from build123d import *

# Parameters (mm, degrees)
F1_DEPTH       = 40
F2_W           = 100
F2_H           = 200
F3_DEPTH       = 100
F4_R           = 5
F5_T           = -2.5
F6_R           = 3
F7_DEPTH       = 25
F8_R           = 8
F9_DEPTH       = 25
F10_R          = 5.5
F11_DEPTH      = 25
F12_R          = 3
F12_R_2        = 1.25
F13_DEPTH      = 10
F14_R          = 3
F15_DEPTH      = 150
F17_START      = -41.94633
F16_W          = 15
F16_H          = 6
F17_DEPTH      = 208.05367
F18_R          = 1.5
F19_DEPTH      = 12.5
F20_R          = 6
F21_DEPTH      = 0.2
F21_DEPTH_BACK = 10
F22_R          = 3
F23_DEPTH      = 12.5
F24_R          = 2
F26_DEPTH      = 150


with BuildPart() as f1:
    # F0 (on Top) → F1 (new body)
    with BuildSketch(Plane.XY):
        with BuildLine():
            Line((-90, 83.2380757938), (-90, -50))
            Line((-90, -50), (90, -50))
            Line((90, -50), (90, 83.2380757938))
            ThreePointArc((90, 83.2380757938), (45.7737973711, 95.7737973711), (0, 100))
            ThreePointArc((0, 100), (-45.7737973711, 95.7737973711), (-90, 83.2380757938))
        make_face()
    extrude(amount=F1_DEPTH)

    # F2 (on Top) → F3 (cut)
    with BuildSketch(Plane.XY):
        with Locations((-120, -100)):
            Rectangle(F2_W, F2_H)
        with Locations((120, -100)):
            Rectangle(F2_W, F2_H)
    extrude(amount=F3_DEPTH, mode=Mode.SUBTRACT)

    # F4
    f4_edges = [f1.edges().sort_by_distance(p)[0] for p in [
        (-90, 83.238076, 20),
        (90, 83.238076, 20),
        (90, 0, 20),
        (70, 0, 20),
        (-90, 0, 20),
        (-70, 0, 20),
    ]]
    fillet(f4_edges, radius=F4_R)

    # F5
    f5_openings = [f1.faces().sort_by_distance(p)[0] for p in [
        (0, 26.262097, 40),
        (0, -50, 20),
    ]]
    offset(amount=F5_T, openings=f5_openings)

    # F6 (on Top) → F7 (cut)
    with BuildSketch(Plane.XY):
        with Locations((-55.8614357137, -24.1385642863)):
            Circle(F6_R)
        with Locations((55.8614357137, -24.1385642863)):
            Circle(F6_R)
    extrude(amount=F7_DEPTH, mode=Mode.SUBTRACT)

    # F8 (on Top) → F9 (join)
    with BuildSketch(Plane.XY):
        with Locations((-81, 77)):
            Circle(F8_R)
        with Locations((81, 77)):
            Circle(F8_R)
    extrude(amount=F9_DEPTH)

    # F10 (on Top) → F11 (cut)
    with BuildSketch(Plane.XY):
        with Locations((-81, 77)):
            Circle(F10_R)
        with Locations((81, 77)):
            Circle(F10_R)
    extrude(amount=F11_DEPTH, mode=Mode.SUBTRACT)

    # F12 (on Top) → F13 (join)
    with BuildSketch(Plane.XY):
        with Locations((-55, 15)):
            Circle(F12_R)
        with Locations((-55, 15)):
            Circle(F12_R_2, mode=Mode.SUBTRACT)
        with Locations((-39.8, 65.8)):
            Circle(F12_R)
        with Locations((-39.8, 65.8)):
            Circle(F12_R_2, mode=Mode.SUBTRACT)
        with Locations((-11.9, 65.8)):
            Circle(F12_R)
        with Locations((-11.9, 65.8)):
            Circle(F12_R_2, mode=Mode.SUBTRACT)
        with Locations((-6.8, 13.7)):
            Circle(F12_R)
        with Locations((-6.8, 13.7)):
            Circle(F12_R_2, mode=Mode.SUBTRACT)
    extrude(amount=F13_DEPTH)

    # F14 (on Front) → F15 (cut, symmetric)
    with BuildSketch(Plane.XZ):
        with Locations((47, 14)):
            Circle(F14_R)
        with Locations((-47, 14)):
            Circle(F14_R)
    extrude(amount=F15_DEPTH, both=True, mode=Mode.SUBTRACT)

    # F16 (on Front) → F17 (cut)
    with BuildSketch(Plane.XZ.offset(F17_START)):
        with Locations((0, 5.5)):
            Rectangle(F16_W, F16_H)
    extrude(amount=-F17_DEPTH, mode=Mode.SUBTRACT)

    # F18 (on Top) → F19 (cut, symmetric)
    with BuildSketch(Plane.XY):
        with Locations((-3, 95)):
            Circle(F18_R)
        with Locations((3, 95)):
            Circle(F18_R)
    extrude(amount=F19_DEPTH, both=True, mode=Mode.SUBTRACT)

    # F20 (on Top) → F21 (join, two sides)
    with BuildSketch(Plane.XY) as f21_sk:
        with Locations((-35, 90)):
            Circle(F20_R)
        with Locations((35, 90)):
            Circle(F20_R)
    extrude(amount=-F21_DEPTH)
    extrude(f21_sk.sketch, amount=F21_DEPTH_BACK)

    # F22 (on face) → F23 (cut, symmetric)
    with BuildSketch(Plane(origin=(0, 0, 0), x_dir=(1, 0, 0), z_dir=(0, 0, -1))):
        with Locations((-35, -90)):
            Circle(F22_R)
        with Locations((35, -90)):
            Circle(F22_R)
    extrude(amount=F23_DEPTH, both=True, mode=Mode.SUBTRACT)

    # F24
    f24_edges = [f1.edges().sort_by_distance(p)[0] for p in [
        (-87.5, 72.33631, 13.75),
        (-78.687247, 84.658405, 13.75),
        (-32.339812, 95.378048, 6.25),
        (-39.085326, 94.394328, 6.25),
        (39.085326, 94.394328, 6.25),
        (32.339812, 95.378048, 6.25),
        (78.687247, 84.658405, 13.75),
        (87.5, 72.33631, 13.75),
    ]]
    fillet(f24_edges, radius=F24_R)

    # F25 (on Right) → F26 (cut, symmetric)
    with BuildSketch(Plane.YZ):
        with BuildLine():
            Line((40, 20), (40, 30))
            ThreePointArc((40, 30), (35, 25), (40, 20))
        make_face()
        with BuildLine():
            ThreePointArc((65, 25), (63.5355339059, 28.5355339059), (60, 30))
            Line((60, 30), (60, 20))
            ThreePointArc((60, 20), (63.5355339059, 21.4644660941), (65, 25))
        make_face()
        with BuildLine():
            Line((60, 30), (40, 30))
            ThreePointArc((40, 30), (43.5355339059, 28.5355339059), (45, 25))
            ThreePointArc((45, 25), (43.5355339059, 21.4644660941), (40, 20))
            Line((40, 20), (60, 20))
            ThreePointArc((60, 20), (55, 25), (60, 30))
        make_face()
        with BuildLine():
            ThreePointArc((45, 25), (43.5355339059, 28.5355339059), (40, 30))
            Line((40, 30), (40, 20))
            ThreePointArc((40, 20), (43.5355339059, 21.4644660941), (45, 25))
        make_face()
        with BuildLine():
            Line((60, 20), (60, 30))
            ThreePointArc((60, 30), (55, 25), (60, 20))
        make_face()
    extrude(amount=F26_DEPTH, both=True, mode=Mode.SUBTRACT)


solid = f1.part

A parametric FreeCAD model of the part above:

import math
import FreeCAD as App
import Part
import Sketcher
Q = App.Units.Quantity


def edges_at(feature, points):
    """Names of the edges that pass closest to the given points."""
    edges = feature.Shape.Edges
    near = lambda p: min(range(len(edges)), key=lambda i: edges[i].distToShape(Part.Vertex(*p))[0])
    return sorted({f"Edge{near(p) + 1}" for p in points})


def faces_at(feature, points):
    """Names of the faces that lie closest to the given points."""
    faces = feature.Shape.Faces
    near = lambda p: min(range(len(faces)), key=lambda i: faces[i].distToShape(Part.Vertex(*p))[0])
    return sorted({f"Face{near(p) + 1}" for p in points})

doc = App.newDocument("Part")
body = doc.addObject("PartDesign::Body", "Body")

# Sketch on XY plane
sketch1 = doc.addObject("Sketcher::SketchObject", "Sketch")
body.addObject(sketch1)
sketch1.AttachmentSupport = (doc.XY_Plane, [""])
sketch1.MapMode = "FlatFace"
sketch1.addGeometry(Part.LineSegment(App.Vector(-90, 83.238076, 0), App.Vector(-90, -50, 0)), False)
sketch1.addGeometry(Part.LineSegment(App.Vector(-90, -50, 0), App.Vector(90, -50, 0)), False)
sketch1.addGeometry(Part.LineSegment(App.Vector(90, -50, 0), App.Vector(90, 83.238076, 0)), False)
sketch1.addGeometry(Part.ArcOfCircle(Part.Circle(App.Vector(0, -150, 0), App.Vector(0, 0, 1), 250), math.radians(68.899804), math.radians(90)), False)
sketch1.addGeometry(Part.ArcOfCircle(Part.Circle(App.Vector(0, -150, 0), App.Vector(0, 0, 1), 250), math.radians(90), math.radians(111.100196)), False)
sketch1.addConstraint(Sketcher.Constraint("Coincident", 0, 2, 1, 1))
sketch1.addConstraint(Sketcher.Constraint("Coincident", 1, 2, 2, 1))
sketch1.addConstraint(Sketcher.Constraint("Coincident", 2, 2, 3, 1))
sketch1.addConstraint(Sketcher.Constraint("Tangent", 3, 2, 4, 1))
sketch1.addConstraint(Sketcher.Constraint("Coincident", 4, 2, 0, 1))
sketch1.addConstraint(Sketcher.Constraint("Vertical", 0))
sketch1.addConstraint(Sketcher.Constraint("Horizontal", 1))
sketch1.addConstraint(Sketcher.Constraint("Vertical", 2))
sketch1.addConstraint(Sketcher.Constraint("Equal", 3, 4))
sketch1.addConstraint(Sketcher.Constraint("Symmetric", 2, 2, 4, 2, -2))
sketch1.addConstraint(Sketcher.Constraint("PointOnObject", 3, 2, -2))
sketch1.addConstraint(Sketcher.Constraint("Radius", 3, Q("250 mm")))
sketch1.addConstraint(Sketcher.Constraint("DistanceX", 1, 1, 1, 2, Q("180 mm")))
sketch1.addConstraint(Sketcher.Constraint("DistanceY", 3, 3, -1, 1, Q("150 mm")))
sketch1.addConstraint(Sketcher.Constraint("DistanceY", 0, 2, -1, 1, Q("50 mm")))
pad1 = doc.addObject("PartDesign::Pad", "Pad")
body.addObject(pad1)
pad1.Profile = sketch1
pad1.Length = 40

# Sketch on XY plane
sketch2 = doc.addObject("Sketcher::SketchObject", "Sketch001")
body.addObject(sketch2)
sketch2.AttachmentSupport = (doc.XY_Plane, [""])
sketch2.MapMode = "FlatFace"
sketch2.addGeometry(Part.LineSegment(App.Vector(-170, 0, 0), App.Vector(-170, -200, 0)), False)
sketch2.addGeometry(Part.LineSegment(App.Vector(-170, -200, 0), App.Vector(-70, -200, 0)), False)
sketch2.addGeometry(Part.LineSegment(App.Vector(-70, -200, 0), App.Vector(-70, 0, 0)), False)
sketch2.addGeometry(Part.LineSegment(App.Vector(-70, 0, 0), App.Vector(-170, 0, 0)), False)
sketch2.addGeometry(Part.LineSegment(App.Vector(70, 0, 0), App.Vector(70, -200, 0)), False)
sketch2.addGeometry(Part.LineSegment(App.Vector(70, -200, 0), App.Vector(170, -200, 0)), False)
sketch2.addGeometry(Part.LineSegment(App.Vector(170, -200, 0), App.Vector(170, 0, 0)), False)
sketch2.addGeometry(Part.LineSegment(App.Vector(170, 0, 0), App.Vector(70, 0, 0)), False)
sketch2.addConstraint(Sketcher.Constraint("Coincident", 0, 2, 1, 1))
sketch2.addConstraint(Sketcher.Constraint("Coincident", 1, 2, 2, 1))
sketch2.addConstraint(Sketcher.Constraint("Coincident", 2, 2, 3, 1))
sketch2.addConstraint(Sketcher.Constraint("Coincident", 3, 2, 0, 1))
sketch2.addConstraint(Sketcher.Constraint("Coincident", 4, 2, 5, 1))
sketch2.addConstraint(Sketcher.Constraint("Coincident", 5, 2, 6, 1))
sketch2.addConstraint(Sketcher.Constraint("Coincident", 6, 2, 7, 1))
sketch2.addConstraint(Sketcher.Constraint("Coincident", 7, 2, 4, 1))
sketch2.addConstraint(Sketcher.Constraint("Vertical", 0))
sketch2.addConstraint(Sketcher.Constraint("Horizontal", 1))
sketch2.addConstraint(Sketcher.Constraint("Vertical", 2))
sketch2.addConstraint(Sketcher.Constraint("Horizontal", 3))
sketch2.addConstraint(Sketcher.Constraint("Vertical", 4))
sketch2.addConstraint(Sketcher.Constraint("Horizontal", 5))
sketch2.addConstraint(Sketcher.Constraint("Vertical", 6))
sketch2.addConstraint(Sketcher.Constraint("Horizontal", 7))
sketch2.addConstraint(Sketcher.Constraint("Symmetric", 3, 2, 6, 2, -1, 1))
sketch2.addConstraint(Sketcher.Constraint("Symmetric", 1, 2, 4, 2, -2))
sketch2.addConstraint(Sketcher.Constraint("PointOnObject", 2, 2, -1))
sketch2.addConstraint(Sketcher.Constraint("DistanceX", 1, 1, 1, 2, Q("100 mm")))
sketch2.addConstraint(Sketcher.Constraint("DistanceY", 0, 2, 0, 1, Q("200 mm")))
sketch2.addConstraint(Sketcher.Constraint("DistanceX", 0, 2, -1, 1, Q("170 mm")))
pocket1 = doc.addObject("PartDesign::Pocket", "Pocket")
body.addObject(pocket1)
pocket1.Profile = sketch2
pocket1.Length = 100
pocket1.Reversed = True
doc.recompute()

fillet = doc.addObject("PartDesign::Fillet", "Fillet")
body.addObject(fillet)
fillet.Base = (pocket1, edges_at(pocket1, [
    (-90, 83.238, 20),
    (90, 83.238, 20),
    (90, 0, 20),
    (70, 0, 20),
    (-90, 0, 20),
    (-70, 0, 20),
]))
fillet.Radius = 5
doc.recompute()

thickness = doc.addObject("PartDesign::Thickness", "Thickness")
body.addObject(thickness)
thickness.Base = (fillet, faces_at(fillet, [(0, 25, 40), (0, -50, 20)]))
thickness.Value = 2.5
thickness.Reversed = True
thickness.Join = "Arc"

# Sketch on XY plane
sketch3 = doc.addObject("Sketcher::SketchObject", "Sketch002")
body.addObject(sketch3)
sketch3.AttachmentSupport = (doc.XY_Plane, [""])
sketch3.MapMode = "FlatFace"
sketch3.addGeometry(Part.Circle(App.Vector(-55.861436, -24.138564, 0), App.Vector(0, 0, 1), 3), False)
sketch3.addGeometry(Part.Circle(App.Vector(55.861436, -24.138564, 0), App.Vector(0, 0, 1), 3), False)
sketch3.addConstraint(Sketcher.Constraint("Equal", 0, 1))
sketch3.addConstraint(Sketcher.Constraint("Symmetric", 0, 3, 1, 3, -2))
sketch3.addConstraint(Sketcher.Constraint("Diameter", 0, Q("6 mm")))
sketch3.addConstraint(Sketcher.Constraint("DistanceX", 0, 3, 1, 3, Q("111.722871 mm")))
sketch3.addConstraint(Sketcher.Constraint("DistanceY", 0, 3, -1, 1, Q("24.138564 mm")))
pocket2 = doc.addObject("PartDesign::Pocket", "Pocket001")
body.addObject(pocket2)
pocket2.Profile = sketch3
pocket2.Length = 25
pocket2.Reversed = True

# Sketch on XY plane
sketch4 = doc.addObject("Sketcher::SketchObject", "Sketch003")
body.addObject(sketch4)
sketch4.AttachmentSupport = (doc.XY_Plane, [""])
sketch4.MapMode = "FlatFace"
sketch4.addGeometry(Part.Circle(App.Vector(-81, 77, 0), App.Vector(0, 0, 1), 8), False)
sketch4.addGeometry(Part.Circle(App.Vector(81, 77, 0), App.Vector(0, 0, 1), 8), False)
sketch4.addConstraint(Sketcher.Constraint("Equal", 0, 1))
sketch4.addConstraint(Sketcher.Constraint("Symmetric", 0, 3, 1, 3, -2))
sketch4.addConstraint(Sketcher.Constraint("Diameter", 0, Q("16 mm")))
sketch4.addConstraint(Sketcher.Constraint("DistanceX", 0, 3, -1, 1, Q("81 mm")))
sketch4.addConstraint(Sketcher.Constraint("DistanceY", -1, 1, 0, 3, Q("77 mm")))
pad2 = doc.addObject("PartDesign::Pad", "Pad001")
body.addObject(pad2)
pad2.Profile = sketch4
pad2.Length = 25

# Sketch on XY plane
sketch5 = doc.addObject("Sketcher::SketchObject", "Sketch004")
body.addObject(sketch5)
sketch5.AttachmentSupport = (doc.XY_Plane, [""])
sketch5.MapMode = "FlatFace"
sketch5.addGeometry(Part.Circle(App.Vector(-81, 77, 0), App.Vector(0, 0, 1), 5.5), False)
sketch5.addGeometry(Part.Circle(App.Vector(81, 77, 0), App.Vector(0, 0, 1), 5.5), False)
sketch5.addConstraint(Sketcher.Constraint("Equal", 0, 1))
sketch5.addConstraint(Sketcher.Constraint("Symmetric", 0, 3, 1, 3, -2))
sketch5.addConstraint(Sketcher.Constraint("Diameter", 0, Q("11 mm")))
sketch5.addConstraint(Sketcher.Constraint("DistanceX", 0, 3, -1, 1, Q("81 mm")))
sketch5.addConstraint(Sketcher.Constraint("DistanceY", -1, 1, 0, 3, Q("77 mm")))
pocket3 = doc.addObject("PartDesign::Pocket", "Pocket002")
body.addObject(pocket3)
pocket3.Profile = sketch5
pocket3.Length = 25
pocket3.Reversed = True

# Sketch on XY plane
sketch6 = doc.addObject("Sketcher::SketchObject", "Sketch005")
body.addObject(sketch6)
sketch6.AttachmentSupport = (doc.XY_Plane, [""])
sketch6.MapMode = "FlatFace"
sketch6.addGeometry(Part.Circle(App.Vector(-55, 15, 0), App.Vector(0, 0, 1), 3), False)
sketch6.addGeometry(Part.Circle(App.Vector(-55, 15, 0), App.Vector(0, 0, 1), 1.25), False)
sketch6.addGeometry(Part.Circle(App.Vector(-39.8, 65.8, 0), App.Vector(0, 0, 1), 3), False)
sketch6.addGeometry(Part.Circle(App.Vector(-39.8, 65.8, 0), App.Vector(0, 0, 1), 1.25), False)
sketch6.addGeometry(Part.Circle(App.Vector(-11.9, 65.8, 0), App.Vector(0, 0, 1), 3), False)
sketch6.addGeometry(Part.Circle(App.Vector(-11.9, 65.8, 0), App.Vector(0, 0, 1), 1.25), False)
sketch6.addGeometry(Part.Circle(App.Vector(-6.8, 13.7, 0), App.Vector(0, 0, 1), 3), False)
sketch6.addGeometry(Part.Circle(App.Vector(-6.8, 13.7, 0), App.Vector(0, 0, 1), 1.25), False)
sketch6.addConstraint(Sketcher.Constraint("Coincident", 1, 3, 0, 3))
sketch6.addConstraint(Sketcher.Constraint("Coincident", 3, 3, 2, 3))
sketch6.addConstraint(Sketcher.Constraint("Coincident", 5, 3, 4, 3))
sketch6.addConstraint(Sketcher.Constraint("Coincident", 7, 3, 6, 3))
sketch6.addConstraint(Sketcher.Constraint("Equal", 0, 2))
sketch6.addConstraint(Sketcher.Constraint("Equal", 1, 3))
sketch6.addConstraint(Sketcher.Constraint("Equal", 2, 4))
sketch6.addConstraint(Sketcher.Constraint("Equal", 3, 5))
sketch6.addConstraint(Sketcher.Constraint("Equal", 4, 6))
sketch6.addConstraint(Sketcher.Constraint("Equal", 5, 7))
sketch6.addConstraint(Sketcher.Constraint("Horizontal", 3, 3, 4, 3))
sketch6.addConstraint(Sketcher.Constraint("Diameter", 0, Q("6 mm")))
sketch6.addConstraint(Sketcher.Constraint("Diameter", 1, Q("2.5 mm")))
sketch6.addConstraint(Sketcher.Constraint("DistanceX", 0, 3, -1, 1, Q("55 mm")))
sketch6.addConstraint(Sketcher.Constraint("DistanceY", -1, 1, 0, 3, Q("15 mm")))
sketch6.addConstraint(Sketcher.Constraint("DistanceX", 2, 3, 6, 3, Q("33 mm")))
sketch6.addConstraint(Sketcher.Constraint("DistanceX", 2, 3, -1, 1, Q("39.8 mm")))
sketch6.addConstraint(Sketcher.Constraint("DistanceY", -1, 1, 2, 3, Q("65.8 mm")))
sketch6.addConstraint(Sketcher.Constraint("DistanceX", 4, 3, -1, 1, Q("11.9 mm")))
sketch6.addConstraint(Sketcher.Constraint("DistanceY", -1, 1, 6, 3, Q("13.7 mm")))
pad3 = doc.addObject("PartDesign::Pad", "Pad002")
body.addObject(pad3)
pad3.Profile = sketch6
pad3.Length = 10

# Sketch on XZ plane
sketch7 = doc.addObject("Sketcher::SketchObject", "Sketch006")
body.addObject(sketch7)
sketch7.AttachmentSupport = (doc.XZ_Plane, [""])
sketch7.MapMode = "FlatFace"
sketch7.addGeometry(Part.Circle(App.Vector(47, 14, 0), App.Vector(0, 0, 1), 3), False)
sketch7.addGeometry(Part.Circle(App.Vector(-47, 14, 0), App.Vector(0, 0, 1), 3), False)
sketch7.addConstraint(Sketcher.Constraint("Equal", 0, 1))
sketch7.addConstraint(Sketcher.Constraint("Symmetric", 0, 3, 1, 3, -2))
sketch7.addConstraint(Sketcher.Constraint("Diameter", 0, Q("6 mm")))
sketch7.addConstraint(Sketcher.Constraint("DistanceX", -1, 1, 0, 3, Q("47 mm")))
sketch7.addConstraint(Sketcher.Constraint("DistanceY", -1, 1, 0, 3, Q("14 mm")))
pocket4 = doc.addObject("PartDesign::Pocket", "Pocket003")
body.addObject(pocket4)
pocket4.Profile = sketch7
pocket4.Length = 300
pocket4.Midplane = True

# Sketch on XZ plane
sketch8 = doc.addObject("Sketcher::SketchObject", "Sketch007")
body.addObject(sketch8)
sketch8.AttachmentSupport = (doc.XZ_Plane, [""])
sketch8.MapMode = "FlatFace"
sketch8.AttachmentOffset = App.Placement(App.Vector(0, 0, -41.94633), App.Rotation())
sketch8.addGeometry(Part.LineSegment(App.Vector(-7.5, 8.5, 0), App.Vector(-7.5, 2.5, 0)), False)
sketch8.addGeometry(Part.LineSegment(App.Vector(-7.5, 2.5, 0), App.Vector(7.5, 2.5, 0)), False)
sketch8.addGeometry(Part.LineSegment(App.Vector(7.5, 2.5, 0), App.Vector(7.5, 8.5, 0)), False)
sketch8.addGeometry(Part.LineSegment(App.Vector(7.5, 8.5, 0), App.Vector(-7.5, 8.5, 0)), False)
sketch8.addConstraint(Sketcher.Constraint("Coincident", 0, 2, 1, 1))
sketch8.addConstraint(Sketcher.Constraint("Coincident", 1, 2, 2, 1))
sketch8.addConstraint(Sketcher.Constraint("Coincident", 2, 2, 3, 1))
sketch8.addConstraint(Sketcher.Constraint("Coincident", 3, 2, 0, 1))
sketch8.addConstraint(Sketcher.Constraint("Vertical", 0))
sketch8.addConstraint(Sketcher.Constraint("Horizontal", 1))
sketch8.addConstraint(Sketcher.Constraint("Vertical", 2))
sketch8.addConstraint(Sketcher.Constraint("Horizontal", 3))
sketch8.addConstraint(Sketcher.Constraint("DistanceX", 1, 1, 1, 2, Q("15 mm")))
sketch8.addConstraint(Sketcher.Constraint("DistanceY", 0, 2, 0, 1, Q("6 mm")))
sketch8.addConstraint(Sketcher.Constraint("DistanceX", 0, 2, -1, 1, Q("7.5 mm")))
sketch8.addConstraint(Sketcher.Constraint("DistanceY", -1, 1, 0, 2, Q("2.5 mm")))
pocket5 = doc.addObject("PartDesign::Pocket", "Pocket004")
body.addObject(pocket5)
pocket5.Profile = sketch8
pocket5.Length = 208.05367

# Sketch on XY plane
sketch9 = doc.addObject("Sketcher::SketchObject", "Sketch008")
body.addObject(sketch9)
sketch9.AttachmentSupport = (doc.XY_Plane, [""])
sketch9.MapMode = "FlatFace"
sketch9.addGeometry(Part.Circle(App.Vector(-3, 95, 0), App.Vector(0, 0, 1), 1.5), False)
sketch9.addGeometry(Part.Circle(App.Vector(3, 95, 0), App.Vector(0, 0, 1), 1.5), False)
sketch9.addConstraint(Sketcher.Constraint("Equal", 0, 1))
sketch9.addConstraint(Sketcher.Constraint("Symmetric", 0, 3, 1, 3, -2))
sketch9.addConstraint(Sketcher.Constraint("Diameter", 0, Q("3 mm")))
sketch9.addConstraint(Sketcher.Constraint("DistanceX", 0, 3, -1, 1, Q("3 mm")))
sketch9.addConstraint(Sketcher.Constraint("DistanceY", -1, 1, 0, 3, Q("95 mm")))
pocket6 = doc.addObject("PartDesign::Pocket", "Pocket005")
body.addObject(pocket6)
pocket6.Profile = sketch9
pocket6.Length = 25
pocket6.Midplane = True

# Sketch on XY plane
sketch10 = doc.addObject("Sketcher::SketchObject", "Sketch009")
body.addObject(sketch10)
sketch10.AttachmentSupport = (doc.XY_Plane, [""])
sketch10.MapMode = "FlatFace"
sketch10.addGeometry(Part.Circle(App.Vector(-35, 90, 0), App.Vector(0, 0, 1), 6), False)
sketch10.addGeometry(Part.Circle(App.Vector(35, 90, 0), App.Vector(0, 0, 1), 6), False)
sketch10.addConstraint(Sketcher.Constraint("Equal", 0, 1))
sketch10.addConstraint(Sketcher.Constraint("Symmetric", 0, 3, 1, 3, -2))
sketch10.addConstraint(Sketcher.Constraint("Diameter", 0, Q("12 mm")))
sketch10.addConstraint(Sketcher.Constraint("DistanceX", 0, 3, -1, 1, Q("35 mm")))
sketch10.addConstraint(Sketcher.Constraint("DistanceY", -1, 1, 0, 3, Q("90 mm")))
pad4 = doc.addObject("PartDesign::Pad", "Pad003")
body.addObject(pad4)
pad4.Profile = sketch10
pad4.Type = "TwoLengths"
pad4.Length = 0.2
pad4.Length2 = 10
pad4.Reversed = True

# Sketch on XY plane
sketch11 = doc.addObject("Sketcher::SketchObject", "Sketch010")
body.addObject(sketch11)
sketch11.AttachmentSupport = (doc.XY_Plane, [""])
sketch11.MapMode = "FlatFace"
sketch11.addGeometry(Part.Circle(App.Vector(-35, 90, 0), App.Vector(0, 0, 1), 3), False)
sketch11.addGeometry(Part.Circle(App.Vector(35, 90, 0), App.Vector(0, 0, 1), 3), False)
sketch11.addConstraint(Sketcher.Constraint("Equal", 0, 1))
sketch11.addConstraint(Sketcher.Constraint("Symmetric", 0, 3, 1, 3, -2))
sketch11.addConstraint(Sketcher.Constraint("Diameter", 0, Q("6 mm")))
sketch11.addConstraint(Sketcher.Constraint("DistanceX", 0, 3, -1, 1, Q("35 mm")))
sketch11.addConstraint(Sketcher.Constraint("DistanceY", -1, 1, 0, 3, Q("90 mm")))
pocket7 = doc.addObject("PartDesign::Pocket", "Pocket006")
body.addObject(pocket7)
pocket7.Profile = sketch11
pocket7.Length = 25
pocket7.Midplane = True
doc.recompute()

fillet2 = doc.addObject("PartDesign::Fillet", "Fillet001")
body.addObject(fillet2)
fillet2.Base = (pocket7, edges_at(pocket7, [
    (-87.5, 72.336, 13.75),
    (-78.687, 84.658, 13.75),
    (-32.34, 95.378, 6.25),
    (-39.085, 94.394, 6.25),
    (39.085, 94.394, 6.25),
    (32.34, 95.378, 6.25),
    (78.687, 84.658, 13.75),
    (87.5, 72.336, 13.75),
]))
fillet2.Radius = 2

# Sketch on YZ plane
sketch12 = doc.addObject("Sketcher::SketchObject", "Sketch011")
body.addObject(sketch12)
sketch12.AttachmentSupport = (doc.YZ_Plane, [""])
sketch12.MapMode = "FlatFace"
sketch12.addGeometry(Part.ArcOfCircle(Part.Circle(App.Vector(40, 25, 0), App.Vector(0, 0, 1), 5), math.radians(90), math.radians(270)), False)
sketch12.addGeometry(Part.LineSegment(App.Vector(40, 20, 0), App.Vector(60, 20, 0)), False)
sketch12.addGeometry(Part.ArcOfCircle(Part.Circle(App.Vector(60, 25, 0), App.Vector(0, 0, 1), 5), math.radians(-90), math.radians(0)), False)
sketch12.addGeometry(Part.ArcOfCircle(Part.Circle(App.Vector(60, 25, 0), App.Vector(0, 0, 1), 5), math.radians(0), math.radians(90)), False)
sketch12.addGeometry(Part.LineSegment(App.Vector(60, 30, 0), App.Vector(40, 30, 0)), False)
sketch12.addConstraint(Sketcher.Constraint("Tangent", 0, 2, 1, 1))
sketch12.addConstraint(Sketcher.Constraint("Tangent", 1, 2, 2, 1))
sketch12.addConstraint(Sketcher.Constraint("Tangent", 2, 2, 3, 1))
sketch12.addConstraint(Sketcher.Constraint("Tangent", 3, 2, 4, 1))
sketch12.addConstraint(Sketcher.Constraint("Tangent", 4, 2, 0, 1))
sketch12.addConstraint(Sketcher.Constraint("Horizontal", 1))
sketch12.addConstraint(Sketcher.Constraint("Horizontal", 4))
sketch12.addConstraint(Sketcher.Constraint("Equal", 0, 2))
sketch12.addConstraint(Sketcher.Constraint("Horizontal", 3, 3, 2, 2))
sketch12.addConstraint(Sketcher.Constraint("Radius", 0, Q("5 mm")))
sketch12.addConstraint(Sketcher.Constraint("DistanceX", 1, 1, 1, 2, Q("20 mm")))
sketch12.addConstraint(Sketcher.Constraint("DistanceX", -1, 1, 0, 3, Q("40 mm")))
sketch12.addConstraint(Sketcher.Constraint("DistanceY", -1, 1, 0, 3, Q("25 mm")))
pocket8 = doc.addObject("PartDesign::Pocket", "Pocket007")
body.addObject(pocket8)
pocket8.Profile = sketch12
pocket8.Length = 300
pocket8.Midplane = True

doc.recompute()
